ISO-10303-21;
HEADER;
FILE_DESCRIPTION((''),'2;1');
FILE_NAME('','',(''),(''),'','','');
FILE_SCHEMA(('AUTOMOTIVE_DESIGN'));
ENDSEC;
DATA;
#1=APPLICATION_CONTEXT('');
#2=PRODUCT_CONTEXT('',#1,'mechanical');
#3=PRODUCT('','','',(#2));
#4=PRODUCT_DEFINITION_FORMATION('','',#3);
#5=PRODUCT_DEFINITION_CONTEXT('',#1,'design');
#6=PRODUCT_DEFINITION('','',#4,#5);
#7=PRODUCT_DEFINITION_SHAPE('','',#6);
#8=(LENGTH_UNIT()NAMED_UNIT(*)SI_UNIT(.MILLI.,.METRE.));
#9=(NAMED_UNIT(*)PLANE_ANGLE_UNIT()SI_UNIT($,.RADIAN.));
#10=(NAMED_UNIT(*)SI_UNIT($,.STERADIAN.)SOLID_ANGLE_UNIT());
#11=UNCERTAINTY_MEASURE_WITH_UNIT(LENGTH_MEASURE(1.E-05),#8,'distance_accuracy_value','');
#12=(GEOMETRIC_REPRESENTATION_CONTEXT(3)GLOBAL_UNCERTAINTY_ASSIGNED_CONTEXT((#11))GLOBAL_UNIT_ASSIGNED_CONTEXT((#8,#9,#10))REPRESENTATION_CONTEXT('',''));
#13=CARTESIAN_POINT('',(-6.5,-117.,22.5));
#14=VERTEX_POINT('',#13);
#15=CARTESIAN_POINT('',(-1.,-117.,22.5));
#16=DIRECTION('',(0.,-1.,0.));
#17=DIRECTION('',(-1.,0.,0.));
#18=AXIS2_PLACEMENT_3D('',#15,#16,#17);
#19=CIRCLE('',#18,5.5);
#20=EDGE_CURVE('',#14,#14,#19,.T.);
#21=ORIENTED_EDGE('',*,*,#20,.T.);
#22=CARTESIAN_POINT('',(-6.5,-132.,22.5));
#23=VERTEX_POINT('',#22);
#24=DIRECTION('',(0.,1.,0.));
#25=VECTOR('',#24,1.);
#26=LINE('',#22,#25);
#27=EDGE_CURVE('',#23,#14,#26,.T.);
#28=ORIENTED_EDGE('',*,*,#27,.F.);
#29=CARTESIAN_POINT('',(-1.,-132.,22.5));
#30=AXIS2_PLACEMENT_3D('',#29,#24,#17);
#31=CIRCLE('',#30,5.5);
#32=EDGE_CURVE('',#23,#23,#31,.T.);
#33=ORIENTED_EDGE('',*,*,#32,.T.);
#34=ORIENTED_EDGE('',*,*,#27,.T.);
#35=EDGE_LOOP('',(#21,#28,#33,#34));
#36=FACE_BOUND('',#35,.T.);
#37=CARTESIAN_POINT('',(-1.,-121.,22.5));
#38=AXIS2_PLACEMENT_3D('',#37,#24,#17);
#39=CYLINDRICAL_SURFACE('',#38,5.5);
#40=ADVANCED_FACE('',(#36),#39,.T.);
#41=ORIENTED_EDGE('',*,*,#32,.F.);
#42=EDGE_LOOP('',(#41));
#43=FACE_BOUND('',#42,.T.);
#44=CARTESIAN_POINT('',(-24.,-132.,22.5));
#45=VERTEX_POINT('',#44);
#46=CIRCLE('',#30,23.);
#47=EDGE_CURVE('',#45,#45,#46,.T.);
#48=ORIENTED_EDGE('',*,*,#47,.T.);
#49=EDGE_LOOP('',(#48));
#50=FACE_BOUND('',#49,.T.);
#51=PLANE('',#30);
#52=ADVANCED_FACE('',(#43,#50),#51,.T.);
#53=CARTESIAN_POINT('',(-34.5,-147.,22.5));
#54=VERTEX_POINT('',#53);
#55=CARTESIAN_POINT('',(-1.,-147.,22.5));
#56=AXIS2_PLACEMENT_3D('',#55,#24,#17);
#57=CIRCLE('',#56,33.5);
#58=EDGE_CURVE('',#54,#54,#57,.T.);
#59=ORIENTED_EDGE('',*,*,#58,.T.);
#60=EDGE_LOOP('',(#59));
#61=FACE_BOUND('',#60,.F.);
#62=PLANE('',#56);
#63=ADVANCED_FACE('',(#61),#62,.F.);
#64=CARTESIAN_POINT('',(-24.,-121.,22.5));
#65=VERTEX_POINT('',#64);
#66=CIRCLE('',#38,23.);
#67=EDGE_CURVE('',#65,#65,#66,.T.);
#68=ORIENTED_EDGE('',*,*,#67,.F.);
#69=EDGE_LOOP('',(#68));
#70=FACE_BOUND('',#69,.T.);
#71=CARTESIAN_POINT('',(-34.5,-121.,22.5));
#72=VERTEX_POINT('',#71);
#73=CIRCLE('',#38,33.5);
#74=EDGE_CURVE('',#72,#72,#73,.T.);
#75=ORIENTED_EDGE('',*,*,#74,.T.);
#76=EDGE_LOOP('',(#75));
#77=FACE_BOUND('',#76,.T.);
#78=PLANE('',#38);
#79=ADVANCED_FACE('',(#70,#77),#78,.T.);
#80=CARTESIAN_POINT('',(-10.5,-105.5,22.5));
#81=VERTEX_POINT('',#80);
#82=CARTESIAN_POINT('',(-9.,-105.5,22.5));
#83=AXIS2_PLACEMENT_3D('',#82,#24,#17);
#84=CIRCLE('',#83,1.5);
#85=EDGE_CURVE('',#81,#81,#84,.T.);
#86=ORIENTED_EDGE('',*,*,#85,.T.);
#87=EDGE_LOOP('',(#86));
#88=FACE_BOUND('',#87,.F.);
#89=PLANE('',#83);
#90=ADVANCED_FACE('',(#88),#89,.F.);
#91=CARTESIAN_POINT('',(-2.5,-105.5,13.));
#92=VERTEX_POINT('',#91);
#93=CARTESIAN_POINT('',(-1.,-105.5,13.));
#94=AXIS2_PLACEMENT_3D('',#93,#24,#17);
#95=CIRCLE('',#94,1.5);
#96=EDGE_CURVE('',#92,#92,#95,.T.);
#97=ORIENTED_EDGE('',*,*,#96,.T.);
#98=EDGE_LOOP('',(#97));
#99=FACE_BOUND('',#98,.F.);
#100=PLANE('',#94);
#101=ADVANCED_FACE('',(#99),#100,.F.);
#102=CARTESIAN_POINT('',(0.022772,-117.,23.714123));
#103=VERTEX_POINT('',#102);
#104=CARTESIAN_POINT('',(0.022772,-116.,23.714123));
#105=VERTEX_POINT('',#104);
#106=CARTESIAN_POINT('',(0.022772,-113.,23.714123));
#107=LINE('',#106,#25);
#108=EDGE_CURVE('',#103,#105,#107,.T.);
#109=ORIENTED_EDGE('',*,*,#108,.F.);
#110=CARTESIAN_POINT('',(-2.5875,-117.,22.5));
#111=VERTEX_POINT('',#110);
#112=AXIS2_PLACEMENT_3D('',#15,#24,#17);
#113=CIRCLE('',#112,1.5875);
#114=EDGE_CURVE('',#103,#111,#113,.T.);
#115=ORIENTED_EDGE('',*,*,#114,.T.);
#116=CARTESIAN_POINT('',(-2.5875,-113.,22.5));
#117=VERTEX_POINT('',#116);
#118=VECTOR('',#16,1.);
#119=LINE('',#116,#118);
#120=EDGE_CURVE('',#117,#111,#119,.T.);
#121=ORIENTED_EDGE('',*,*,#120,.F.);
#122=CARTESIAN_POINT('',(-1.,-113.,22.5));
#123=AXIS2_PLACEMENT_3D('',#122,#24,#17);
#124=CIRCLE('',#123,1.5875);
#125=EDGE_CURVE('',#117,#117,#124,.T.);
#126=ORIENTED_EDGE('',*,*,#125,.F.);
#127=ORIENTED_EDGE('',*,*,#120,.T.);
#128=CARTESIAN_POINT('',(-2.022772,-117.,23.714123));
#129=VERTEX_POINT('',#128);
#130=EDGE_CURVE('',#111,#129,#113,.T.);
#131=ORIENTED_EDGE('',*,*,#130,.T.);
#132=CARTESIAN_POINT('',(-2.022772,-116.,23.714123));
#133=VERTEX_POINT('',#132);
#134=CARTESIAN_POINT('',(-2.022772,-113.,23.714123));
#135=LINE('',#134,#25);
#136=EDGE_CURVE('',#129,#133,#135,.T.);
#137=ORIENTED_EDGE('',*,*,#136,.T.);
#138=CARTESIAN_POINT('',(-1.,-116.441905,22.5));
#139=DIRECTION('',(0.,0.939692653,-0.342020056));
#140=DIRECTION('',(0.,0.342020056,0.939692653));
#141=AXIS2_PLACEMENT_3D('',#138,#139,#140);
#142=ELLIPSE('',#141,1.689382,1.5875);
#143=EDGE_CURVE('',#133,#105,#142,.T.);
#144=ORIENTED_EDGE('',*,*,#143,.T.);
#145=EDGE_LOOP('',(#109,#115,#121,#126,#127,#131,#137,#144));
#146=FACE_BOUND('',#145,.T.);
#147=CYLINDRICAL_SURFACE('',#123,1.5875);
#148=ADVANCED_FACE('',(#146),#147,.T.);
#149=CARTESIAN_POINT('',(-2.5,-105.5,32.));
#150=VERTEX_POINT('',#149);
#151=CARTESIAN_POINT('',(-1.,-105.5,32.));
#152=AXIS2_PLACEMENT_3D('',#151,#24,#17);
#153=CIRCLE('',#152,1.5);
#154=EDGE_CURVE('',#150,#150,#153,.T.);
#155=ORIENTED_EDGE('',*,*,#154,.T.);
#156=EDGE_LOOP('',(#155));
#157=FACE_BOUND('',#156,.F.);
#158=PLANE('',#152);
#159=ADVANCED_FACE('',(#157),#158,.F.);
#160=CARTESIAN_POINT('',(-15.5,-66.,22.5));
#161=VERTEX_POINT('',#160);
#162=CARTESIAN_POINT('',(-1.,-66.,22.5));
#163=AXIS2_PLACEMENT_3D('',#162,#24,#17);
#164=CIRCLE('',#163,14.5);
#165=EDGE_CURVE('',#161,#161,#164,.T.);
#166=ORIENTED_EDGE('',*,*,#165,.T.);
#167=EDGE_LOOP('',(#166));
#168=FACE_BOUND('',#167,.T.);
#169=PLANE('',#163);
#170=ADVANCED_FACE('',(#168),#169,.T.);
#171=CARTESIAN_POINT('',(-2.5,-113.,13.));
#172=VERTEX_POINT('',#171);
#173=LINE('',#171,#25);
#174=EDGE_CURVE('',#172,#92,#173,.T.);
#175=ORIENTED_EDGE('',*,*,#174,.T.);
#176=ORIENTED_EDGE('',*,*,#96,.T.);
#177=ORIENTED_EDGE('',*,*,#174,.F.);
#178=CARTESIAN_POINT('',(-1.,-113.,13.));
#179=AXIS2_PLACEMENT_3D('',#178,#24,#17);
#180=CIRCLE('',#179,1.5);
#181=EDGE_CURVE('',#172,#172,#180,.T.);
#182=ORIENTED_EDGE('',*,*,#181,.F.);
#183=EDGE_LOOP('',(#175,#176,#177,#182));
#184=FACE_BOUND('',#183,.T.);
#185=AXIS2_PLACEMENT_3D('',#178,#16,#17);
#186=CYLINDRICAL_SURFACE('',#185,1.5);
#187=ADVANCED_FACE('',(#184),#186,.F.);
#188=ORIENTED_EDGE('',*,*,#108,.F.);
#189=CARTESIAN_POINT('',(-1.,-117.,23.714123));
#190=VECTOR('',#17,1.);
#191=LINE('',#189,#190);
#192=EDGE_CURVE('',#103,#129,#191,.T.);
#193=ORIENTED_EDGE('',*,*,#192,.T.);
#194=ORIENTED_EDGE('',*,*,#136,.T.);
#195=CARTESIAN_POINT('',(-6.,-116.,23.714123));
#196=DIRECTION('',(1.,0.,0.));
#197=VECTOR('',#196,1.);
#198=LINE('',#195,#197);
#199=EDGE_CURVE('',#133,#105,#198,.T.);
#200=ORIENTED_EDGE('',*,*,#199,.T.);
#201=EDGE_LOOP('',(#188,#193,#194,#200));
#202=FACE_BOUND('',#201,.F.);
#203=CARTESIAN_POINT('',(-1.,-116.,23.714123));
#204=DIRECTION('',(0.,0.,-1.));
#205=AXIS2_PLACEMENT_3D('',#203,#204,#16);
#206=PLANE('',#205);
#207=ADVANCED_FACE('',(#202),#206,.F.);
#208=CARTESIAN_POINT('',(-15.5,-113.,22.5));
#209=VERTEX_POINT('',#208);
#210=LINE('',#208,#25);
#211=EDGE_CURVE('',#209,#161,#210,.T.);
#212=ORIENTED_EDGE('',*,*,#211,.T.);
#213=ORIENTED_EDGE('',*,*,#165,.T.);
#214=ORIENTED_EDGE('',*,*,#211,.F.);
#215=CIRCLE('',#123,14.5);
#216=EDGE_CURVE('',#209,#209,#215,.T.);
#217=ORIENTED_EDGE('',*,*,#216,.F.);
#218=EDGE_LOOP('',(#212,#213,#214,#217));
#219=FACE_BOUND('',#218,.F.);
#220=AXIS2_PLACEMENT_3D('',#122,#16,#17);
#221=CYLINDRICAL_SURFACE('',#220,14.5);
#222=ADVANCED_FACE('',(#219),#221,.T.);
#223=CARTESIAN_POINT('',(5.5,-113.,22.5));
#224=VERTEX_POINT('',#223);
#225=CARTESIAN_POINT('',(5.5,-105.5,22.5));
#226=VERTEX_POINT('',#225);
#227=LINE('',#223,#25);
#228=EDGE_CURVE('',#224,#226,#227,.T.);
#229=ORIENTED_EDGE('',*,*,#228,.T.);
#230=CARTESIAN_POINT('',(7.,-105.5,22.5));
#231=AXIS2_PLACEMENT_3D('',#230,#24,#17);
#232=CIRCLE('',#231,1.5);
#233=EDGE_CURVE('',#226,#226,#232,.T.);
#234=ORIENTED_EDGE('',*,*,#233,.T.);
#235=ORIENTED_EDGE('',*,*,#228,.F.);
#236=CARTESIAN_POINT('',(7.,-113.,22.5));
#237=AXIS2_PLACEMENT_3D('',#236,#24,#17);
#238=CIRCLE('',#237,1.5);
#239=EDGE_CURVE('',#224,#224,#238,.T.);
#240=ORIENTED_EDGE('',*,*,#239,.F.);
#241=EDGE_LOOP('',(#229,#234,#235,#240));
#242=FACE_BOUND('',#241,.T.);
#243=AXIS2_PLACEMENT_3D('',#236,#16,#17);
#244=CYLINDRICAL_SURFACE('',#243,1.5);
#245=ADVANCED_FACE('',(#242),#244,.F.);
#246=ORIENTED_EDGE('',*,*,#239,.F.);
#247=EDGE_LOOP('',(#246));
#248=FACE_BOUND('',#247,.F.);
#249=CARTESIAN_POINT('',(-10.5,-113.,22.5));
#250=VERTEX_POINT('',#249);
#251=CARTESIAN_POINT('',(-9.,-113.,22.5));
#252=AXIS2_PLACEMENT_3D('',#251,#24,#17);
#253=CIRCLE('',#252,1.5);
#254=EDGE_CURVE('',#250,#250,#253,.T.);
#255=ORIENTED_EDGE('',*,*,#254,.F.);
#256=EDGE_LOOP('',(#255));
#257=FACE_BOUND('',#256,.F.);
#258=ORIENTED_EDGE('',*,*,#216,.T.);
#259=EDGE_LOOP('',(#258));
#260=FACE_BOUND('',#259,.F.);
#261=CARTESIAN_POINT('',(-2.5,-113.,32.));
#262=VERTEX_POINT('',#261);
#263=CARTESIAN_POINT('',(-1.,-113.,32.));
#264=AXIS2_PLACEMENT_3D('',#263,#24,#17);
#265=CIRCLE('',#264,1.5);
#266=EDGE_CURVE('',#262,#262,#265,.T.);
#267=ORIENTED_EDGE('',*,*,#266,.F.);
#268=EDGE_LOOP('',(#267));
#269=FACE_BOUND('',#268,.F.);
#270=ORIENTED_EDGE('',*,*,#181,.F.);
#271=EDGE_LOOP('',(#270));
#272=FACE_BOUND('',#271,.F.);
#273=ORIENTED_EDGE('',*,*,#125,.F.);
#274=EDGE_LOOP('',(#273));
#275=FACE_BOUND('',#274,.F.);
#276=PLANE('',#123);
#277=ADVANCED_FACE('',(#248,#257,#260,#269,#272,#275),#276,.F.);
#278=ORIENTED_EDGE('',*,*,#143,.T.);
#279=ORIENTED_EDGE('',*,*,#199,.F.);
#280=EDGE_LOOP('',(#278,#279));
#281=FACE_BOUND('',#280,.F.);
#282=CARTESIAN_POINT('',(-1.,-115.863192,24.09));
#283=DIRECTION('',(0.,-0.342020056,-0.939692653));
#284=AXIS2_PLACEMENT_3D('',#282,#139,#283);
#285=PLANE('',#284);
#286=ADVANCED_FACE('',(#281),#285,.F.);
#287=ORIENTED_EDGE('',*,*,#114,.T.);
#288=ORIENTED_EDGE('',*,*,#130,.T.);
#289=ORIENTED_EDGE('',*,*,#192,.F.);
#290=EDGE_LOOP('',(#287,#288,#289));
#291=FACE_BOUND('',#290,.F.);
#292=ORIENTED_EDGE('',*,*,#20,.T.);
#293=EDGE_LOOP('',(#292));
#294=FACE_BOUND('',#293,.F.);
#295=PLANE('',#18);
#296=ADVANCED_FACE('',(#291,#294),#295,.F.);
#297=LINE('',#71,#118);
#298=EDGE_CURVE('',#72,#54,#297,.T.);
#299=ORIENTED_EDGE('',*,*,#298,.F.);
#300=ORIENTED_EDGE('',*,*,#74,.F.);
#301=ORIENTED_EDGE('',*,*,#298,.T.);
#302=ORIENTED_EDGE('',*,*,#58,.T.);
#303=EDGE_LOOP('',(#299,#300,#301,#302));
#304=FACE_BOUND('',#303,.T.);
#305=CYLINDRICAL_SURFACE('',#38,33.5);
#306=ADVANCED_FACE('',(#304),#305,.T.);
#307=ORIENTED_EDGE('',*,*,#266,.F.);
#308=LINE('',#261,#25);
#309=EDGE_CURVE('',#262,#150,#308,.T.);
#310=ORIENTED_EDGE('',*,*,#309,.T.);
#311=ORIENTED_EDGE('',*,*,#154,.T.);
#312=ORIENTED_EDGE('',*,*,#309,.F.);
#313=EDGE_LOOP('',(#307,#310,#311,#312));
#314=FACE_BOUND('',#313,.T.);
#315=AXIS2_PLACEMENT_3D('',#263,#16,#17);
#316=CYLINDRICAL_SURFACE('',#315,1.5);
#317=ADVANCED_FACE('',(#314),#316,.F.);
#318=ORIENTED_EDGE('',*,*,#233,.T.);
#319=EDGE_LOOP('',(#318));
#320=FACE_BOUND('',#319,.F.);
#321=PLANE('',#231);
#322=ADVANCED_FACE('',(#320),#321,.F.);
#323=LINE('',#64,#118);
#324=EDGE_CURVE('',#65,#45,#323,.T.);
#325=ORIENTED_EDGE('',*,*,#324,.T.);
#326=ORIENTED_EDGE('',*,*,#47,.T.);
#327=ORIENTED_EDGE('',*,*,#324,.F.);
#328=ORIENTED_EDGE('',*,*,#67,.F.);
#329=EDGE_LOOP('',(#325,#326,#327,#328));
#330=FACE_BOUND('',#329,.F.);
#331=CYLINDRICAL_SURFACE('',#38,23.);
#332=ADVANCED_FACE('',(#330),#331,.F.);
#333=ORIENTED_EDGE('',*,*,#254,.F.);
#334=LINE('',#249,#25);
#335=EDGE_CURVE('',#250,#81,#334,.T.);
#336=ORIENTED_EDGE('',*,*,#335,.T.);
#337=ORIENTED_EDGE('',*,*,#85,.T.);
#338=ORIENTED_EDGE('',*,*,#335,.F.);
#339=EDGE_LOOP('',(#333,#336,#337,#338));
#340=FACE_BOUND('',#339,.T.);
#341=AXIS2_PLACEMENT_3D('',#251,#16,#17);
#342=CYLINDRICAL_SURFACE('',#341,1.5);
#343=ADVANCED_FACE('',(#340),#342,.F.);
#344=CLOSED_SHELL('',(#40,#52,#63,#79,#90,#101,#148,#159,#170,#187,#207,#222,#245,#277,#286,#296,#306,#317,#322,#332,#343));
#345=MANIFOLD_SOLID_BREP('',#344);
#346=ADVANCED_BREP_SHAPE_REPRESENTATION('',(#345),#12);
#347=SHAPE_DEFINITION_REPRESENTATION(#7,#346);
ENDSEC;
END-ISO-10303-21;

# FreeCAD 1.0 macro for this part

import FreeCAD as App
import Part
import Sketcher
from FreeCAD import Vector
Q = App.Units.Quantity

doc = App.newDocument("Part")
body = doc.addObject("PartDesign::Body", "Body")

# Sketch on XZ plane
sketch1 = body.newObject("Sketcher::SketchObject", "Sketch")
sketch1.AttachmentSupport = (doc.getObject("XZ_Plane"), [""])
sketch1.MapMode = "FlatFace"
sketch1.addGeometry(Part.Circle(Vector(0, 0, 0), Vector(0, 0, 1), 14.5), False)
sketch1.addConstraint(Sketcher.Constraint("Coincident", 0, 3, -1, 1))
sketch1.addConstraint(Sketcher.Constraint("Diameter", 0, 29.0))
pad1 = body.newObject("PartDesign::Pad", "Pad")
pad1.Profile = sketch1
pad1.Length = 47

# Sketch on XZ plane
sketch2 = body.newObject("Sketcher::SketchObject", "Sketch001")
sketch2.AttachmentSupport = (doc.getObject("XZ_Plane"), [""])
sketch2.MapMode = "FlatFace"
sketch2.addGeometry(Part.Circle(Vector(0, 0, 0), Vector(0, 0, 1), 1.5875), False)
sketch2.addConstraint(Sketcher.Constraint("Coincident", 0, 3, -1, 1))
sketch2.addConstraint(Sketcher.Constraint("Diameter", 0, 3.175))
pad2 = body.newObject("PartDesign::Pad", "Pad001")
pad2.Profile = sketch2
pad2.Length = 15
pad2.Reversed = True

# Sketch on YZ plane
sketch3 = body.newObject("Sketcher::SketchObject", "Sketch002")
sketch3.AttachmentSupport = (doc.getObject("YZ_Plane"), [""])
sketch3.MapMode = "FlatFace"
sketch3.addGeometry(Part.LineSegment(Vector(3, 1.214123, 0), Vector(15, 1.214123, 0)), False)
sketch3.addGeometry(Part.LineSegment(Vector(15, 1.214123, 0), Vector(15, 1.59, 0)), False)
sketch3.addGeometry(Part.LineSegment(Vector(15, 1.59, 0), Vector(2.863192, 1.59, 0)), False)
sketch3.addGeometry(Part.LineSegment(Vector(2.863192, 1.59, 0), Vector(3, 1.214123, 0)), False)
sketch3.addConstraint(Sketcher.Constraint("Coincident", 0, 2, 1, 1))
sketch3.addConstraint(Sketcher.Constraint("Coincident", 1, 2, 2, 1))
sketch3.addConstraint(Sketcher.Constraint("Coincident", 2, 2, 3, 1))
sketch3.addConstraint(Sketcher.Constraint("Coincident", 3, 2, 0, 1))
sketch3.addConstraint(Sketcher.Constraint("Horizontal", 0))
sketch3.addConstraint(Sketcher.Constraint("Vertical", 1))
sketch3.addConstraint(Sketcher.Constraint("Horizontal", 2))
sketch3.addConstraint(Sketcher.Constraint("DistanceX", 0, 1, 0, 2, 12.0))
sketch3.addConstraint(Sketcher.Constraint("Angle", 3, Q("-70.000005 deg")))
sketch3.addConstraint(Sketcher.Constraint("DistanceX", -1, 1, 0, 2, 15.0))
sketch3.addConstraint(Sketcher.Constraint("Distance", 3, 0.4))
sketch3.addConstraint(Sketcher.Constraint("DistanceY", -1, 1, 1, 2, 1.59))
pocket1 = body.newObject("PartDesign::Pocket", "Pocket")
pocket1.Profile = sketch3
pocket1.Length = 10
pocket1.Midplane = True

# Sketch on XZ plane
sketch4 = body.newObject("Sketcher::SketchObject", "Sketch003")
sketch4.AttachmentSupport = (doc.getObject("XZ_Plane"), [""])
sketch4.MapMode = "FlatFace"
sketch4.AttachmentOffset = App.Placement(Vector(0, 0, -15), App.Rotation())
sketch4.addGeometry(Part.Circle(Vector(0, 0, 0), Vector(0, 0, 1), 5.5), False)
sketch4.addConstraint(Sketcher.Constraint("Coincident", 0, 3, -1, 1))
sketch4.addConstraint(Sketcher.Constraint("Diameter", 0, 11.0))
pad3 = body.newObject("PartDesign::Pad", "Pad002")
pad3.Profile = sketch4
pad3.Length = 11

# Sketch on XZ plane
sketch5 = body.newObject("Sketcher::SketchObject", "Sketch004")
sketch5.AttachmentSupport = (doc.getObject("XZ_Plane"), [""])
sketch5.MapMode = "FlatFace"
sketch5.AttachmentOffset = App.Placement(Vector(0, 0, -8), App.Rotation())
sketch5.addGeometry(Part.Circle(Vector(0, 0, 0), Vector(0, 0, 1), 33.5), False)
sketch5.addConstraint(Sketcher.Constraint("Coincident", 0, 3, -1, 1))
sketch5.addConstraint(Sketcher.Constraint("Diameter", 0, 67.0))
pad4 = body.newObject("PartDesign::Pad", "Pad003")
pad4.Profile = sketch5
pad4.Length = 26
pad4.Reversed = True

# Sketch on XZ plane
sketch6 = body.newObject("Sketcher::SketchObject", "Sketch005")
sketch6.AttachmentSupport = (doc.getObject("XZ_Plane"), [""])
sketch6.MapMode = "FlatFace"
sketch6.addGeometry(Part.Circle(Vector(0, -9.5, 0), Vector(0, 0, 1), 1.5), False)
sketch6.addGeometry(Part.Circle(Vector(8, 0, 0), Vector(0, 0, 1), 1.5), False)
sketch6.addGeometry(Part.Circle(Vector(0, 9.5, 0), Vector(0, 0, 1), 1.5), False)
sketch6.addGeometry(Part.Circle(Vector(-8, 0, 0), Vector(0, 0, 1), 1.5), False)
sketch6.addConstraint(Sketcher.Constraint("Equal", 0, 1))
sketch6.addConstraint(Sketcher.Constraint("Equal", 1, 2))
sketch6.addConstraint(Sketcher.Constraint("Equal", 2, 3))
sketch6.addConstraint(Sketcher.Constraint("Symmetric", 0, 3, 2, 3, -1, 1))
sketch6.addConstraint(Sketcher.Constraint("Symmetric", 1, 3, 3, 3, -1, 1))
sketch6.addConstraint(Sketcher.Constraint("PointOnObject", 0, 3, -2))
sketch6.addConstraint(Sketcher.Constraint("PointOnObject", 1, 3, -1))
sketch6.addConstraint(Sketcher.Constraint("Diameter", 0, 3.0))
sketch6.addConstraint(Sketcher.Constraint("DistanceX", -1, 1, 1, 3, 8.0))
sketch6.addConstraint(Sketcher.Constraint("DistanceY", 0, 3, 2, 3, 19.0))
pocket2 = body.newObject("PartDesign::Pocket", "Pocket001")
pocket2.Profile = sketch6
pocket2.Length = 7.5
pocket2.Reversed = True

# Sketch on XZ plane
sketch7 = body.newObject("Sketcher::SketchObject", "Sketch006")
sketch7.AttachmentSupport = (doc.getObject("XZ_Plane"), [""])
sketch7.MapMode = "FlatFace"
sketch7.AttachmentOffset = App.Placement(Vector(0, 0, -8), App.Rotation())
sketch7.addGeometry(Part.Circle(Vector(0, 0, 0), Vector(0, 0, 1), 23), False)
sketch7.addGeometry(Part.Circle(Vector(0, 0, 0), Vector(0, 0, 1), 5.5), False)
sketch7.addConstraint(Sketcher.Constraint("Coincident", 0, 3, -1, 1))
sketch7.addConstraint(Sketcher.Constraint("Coincident", 1, 3, -1, 1))
sketch7.addConstraint(Sketcher.Constraint("Diameter", 0, 46.0))
sketch7.addConstraint(Sketcher.Constraint("Diameter", 1, 11.0))
pocket3 = body.newObject("PartDesign::Pocket", "Pocket002")
pocket3.Profile = sketch7
pocket3.Length = 11
body2 = doc.addObject("PartDesign::Body", "Body001")
doc.recompute()

body.Placement = App.Placement(Vector(-1, -113, 22.5), App.Rotation(Vector(0, 0, 1), 180))
boolean = body2.newObject("PartDesign::Boolean", "Boolean")
boolean.Type = "Fuse"
boolean.addObjects([body])

doc.recompute()
